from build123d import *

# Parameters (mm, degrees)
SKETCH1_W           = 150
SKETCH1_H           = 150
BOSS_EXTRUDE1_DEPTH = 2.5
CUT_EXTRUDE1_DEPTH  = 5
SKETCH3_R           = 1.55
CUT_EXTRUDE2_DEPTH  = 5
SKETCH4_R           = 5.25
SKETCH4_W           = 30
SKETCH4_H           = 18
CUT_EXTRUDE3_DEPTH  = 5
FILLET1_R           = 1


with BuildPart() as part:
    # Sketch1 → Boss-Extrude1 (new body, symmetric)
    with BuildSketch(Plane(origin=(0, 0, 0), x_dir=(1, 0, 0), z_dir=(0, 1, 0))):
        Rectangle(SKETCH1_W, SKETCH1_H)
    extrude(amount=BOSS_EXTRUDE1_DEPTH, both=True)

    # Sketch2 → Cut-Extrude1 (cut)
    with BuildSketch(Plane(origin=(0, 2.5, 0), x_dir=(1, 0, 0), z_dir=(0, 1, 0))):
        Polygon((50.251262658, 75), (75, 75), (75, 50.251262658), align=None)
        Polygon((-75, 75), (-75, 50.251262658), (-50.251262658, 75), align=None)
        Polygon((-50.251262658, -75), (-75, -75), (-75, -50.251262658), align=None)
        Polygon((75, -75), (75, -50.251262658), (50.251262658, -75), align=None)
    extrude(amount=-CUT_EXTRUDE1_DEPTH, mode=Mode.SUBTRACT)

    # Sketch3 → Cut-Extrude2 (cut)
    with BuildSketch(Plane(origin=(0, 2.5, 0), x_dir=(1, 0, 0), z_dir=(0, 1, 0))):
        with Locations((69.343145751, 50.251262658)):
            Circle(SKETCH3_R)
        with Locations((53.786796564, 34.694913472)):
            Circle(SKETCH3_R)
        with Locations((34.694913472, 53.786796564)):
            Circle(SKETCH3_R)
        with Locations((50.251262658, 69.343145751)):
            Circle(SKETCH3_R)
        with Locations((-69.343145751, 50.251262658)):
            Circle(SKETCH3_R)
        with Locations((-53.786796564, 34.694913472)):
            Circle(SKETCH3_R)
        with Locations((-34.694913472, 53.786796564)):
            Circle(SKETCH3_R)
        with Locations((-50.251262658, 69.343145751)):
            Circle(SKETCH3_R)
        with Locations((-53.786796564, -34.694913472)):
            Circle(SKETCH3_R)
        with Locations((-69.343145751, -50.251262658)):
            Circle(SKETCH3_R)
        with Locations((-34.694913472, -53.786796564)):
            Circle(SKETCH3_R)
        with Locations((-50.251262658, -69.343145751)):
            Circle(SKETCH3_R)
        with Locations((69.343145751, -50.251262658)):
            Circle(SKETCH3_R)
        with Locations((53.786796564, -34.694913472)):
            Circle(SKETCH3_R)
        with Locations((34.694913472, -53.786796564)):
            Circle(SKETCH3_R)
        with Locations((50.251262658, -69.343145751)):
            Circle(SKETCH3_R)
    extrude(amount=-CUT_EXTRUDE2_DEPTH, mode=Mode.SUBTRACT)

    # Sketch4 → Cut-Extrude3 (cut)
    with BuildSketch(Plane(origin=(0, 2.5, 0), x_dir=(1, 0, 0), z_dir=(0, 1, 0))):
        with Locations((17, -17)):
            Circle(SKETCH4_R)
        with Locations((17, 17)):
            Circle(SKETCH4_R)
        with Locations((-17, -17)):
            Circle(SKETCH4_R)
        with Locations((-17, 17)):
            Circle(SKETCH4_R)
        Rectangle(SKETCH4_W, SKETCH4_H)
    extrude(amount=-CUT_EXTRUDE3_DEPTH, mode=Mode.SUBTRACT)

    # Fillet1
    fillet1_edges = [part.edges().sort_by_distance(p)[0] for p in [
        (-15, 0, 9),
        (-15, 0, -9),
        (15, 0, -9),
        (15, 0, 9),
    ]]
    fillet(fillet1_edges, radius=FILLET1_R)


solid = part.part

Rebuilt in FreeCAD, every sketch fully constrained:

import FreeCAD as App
import Part
import Sketcher


def edges_at(feature, points):
    """Names of the edges that pass closest to the given points."""
    edges = feature.Shape.Edges
    near = lambda p: min(range(len(edges)), key=lambda i: edges[i].distToShape(Part.Vertex(*p))[0])
    return sorted({f"Edge{near(p) + 1}" for p in points})

doc = App.newDocument("Part")
params = doc.addObject("Spreadsheet::Sheet", "Params")
for row, (alias, value) in enumerate([
    ("sketch1_width", "150 mm"),
    ("pad1_length", "5 mm"),
    ("sketch2_length", "35 mm"),
    ("pocket1_length", "5 mm"),
    ("sketch3_diameter", "3.1 mm"),
    ("pocket2_length", "5 mm"),
    ("sketch4_diameter", "10.5 mm"),
    ("sketch4_width", "30 mm"),
    ("sketch4_height", "18 mm"),
    ("pocket3_length", "5 mm"),
    ("fillet_radius", "1 mm"),
], start=1):
    params.set(f"A{row}", alias)
    params.set(f"B{row}", "=" + value)
    params.setAlias(f"B{row}", alias)

body = doc.addObject("PartDesign::Body", "Body")

# Sketch on XZ plane
sketch1 = body.newObject("Sketcher::SketchObject", "Sketch")
sketch1.AttachmentSupport = (doc.getObject("XZ_Plane"), [""])
sketch1.MapMode = "FlatFace"
sketch1.addGeometry([
    Part.LineSegment(App.Vector(-75, -75, 0), App.Vector(-75, 75, 0)),
    Part.LineSegment(App.Vector(-75, 75, 0), App.Vector(75, 75, 0)),
    Part.LineSegment(App.Vector(75, 75, 0), App.Vector(75, -75, 0)),
    Part.LineSegment(App.Vector(75, -75, 0), App.Vector(-75, -75, 0)),
], False)
sketch1.addConstraint([
    Sketcher.Constraint("Coincident", 0, 2, 1, 1),
    Sketcher.Constraint("Coincident", 1, 2, 2, 1),
    Sketcher.Constraint("Coincident", 2, 2, 3, 1),
    Sketcher.Constraint("Coincident", 3, 2, 0, 1),
    Sketcher.Constraint("Vertical", 0),
    Sketcher.Constraint("Horizontal", 1),
    Sketcher.Constraint("Vertical", 2),
    Sketcher.Constraint("Horizontal", 3),
    Sketcher.Constraint("Symmetric", 0, 2, 2, 2, -1, 1),
    Sketcher.Constraint("Equal", 3, 0),
    Sketcher.Constraint("DistanceX", 1, 1, 1, 2, 150.0),
])
sketch1.setExpression("Constraints[10]", "Params.sketch1_width")
pad1 = body.newObject("PartDesign::Pad", "Pad")
pad1.Profile = sketch1
pad1.setExpression("Length", "Params.pad1_length")
pad1.Midplane = True

# Sketch on XZ plane
sketch2 = body.newObject("Sketcher::SketchObject", "Sketch001")
sketch2.AttachmentSupport = (doc.getObject("XZ_Plane"), [""])
sketch2.MapMode = "FlatFace"
sketch2.AttachmentOffset = App.Placement(App.Vector(0, 0, -2.5), App.Rotation())
sketch2.addGeometry([
    Part.LineSegment(App.Vector(75, -75, 0), App.Vector(50, -75, 0)),  # 0
    Part.LineSegment(App.Vector(50, -75, 0), App.Vector(75, -50, 0)),  # 1
    Part.LineSegment(App.Vector(75, -50, 0), App.Vector(75, -75, 0)),  # 2
    Part.LineSegment(App.Vector(-75, -75, 0), App.Vector(-75, -50, 0)),  # 3
    Part.LineSegment(App.Vector(-75, -50, 0), App.Vector(-50, -75, 0)),  # 4
    Part.LineSegment(App.Vector(-50, -75, 0), App.Vector(-75, -75, 0)),  # 5
    Part.LineSegment(App.Vector(-75, 75, 0), App.Vector(-50, 75, 0)),  # 6
    Part.LineSegment(App.Vector(-50, 75, 0), App.Vector(-75, 50, 0)),  # 7
    Part.LineSegment(App.Vector(-75, 50, 0), App.Vector(-75, 75, 0)),  # 8
    Part.LineSegment(App.Vector(75, 75, 0), App.Vector(75, 50, 0)),  # 9
    Part.LineSegment(App.Vector(75, 50, 0), App.Vector(50, 75, 0)),  # 10
    Part.LineSegment(App.Vector(50, 75, 0), App.Vector(75, 75, 0)),  # 11
], False)
sketch2.addConstraint([
    Sketcher.Constraint("Coincident", 0, 2, 1, 1),
    Sketcher.Constraint("Coincident", 1, 2, 2, 1),
    Sketcher.Constraint("Coincident", 2, 2, 0, 1),
    Sketcher.Constraint("Coincident", 3, 2, 4, 1),
    Sketcher.Constraint("Coincident", 4, 2, 5, 1),
    Sketcher.Constraint("Coincident", 5, 2, 3, 1),
    Sketcher.Constraint("Coincident", 6, 2, 7, 1),
    Sketcher.Constraint("Coincident", 7, 2, 8, 1),
    Sketcher.Constraint("Coincident", 8, 2, 6, 1),
    Sketcher.Constraint("Coincident", 9, 2, 10, 1),
    Sketcher.Constraint("Coincident", 10, 2, 11, 1),
    Sketcher.Constraint("Coincident", 11, 2, 9, 1),
    Sketcher.Constraint("Horizontal", 0),
    Sketcher.Constraint("Vertical", 2),
    Sketcher.Constraint("Vertical", 3),
    Sketcher.Constraint("Horizontal", 5),
    Sketcher.Constraint("Horizontal", 6),
    Sketcher.Constraint("Vertical", 8),
    Sketcher.Constraint("Vertical", 9),
    Sketcher.Constraint("Horizontal", 11),
    Sketcher.Constraint("Symmetric", 0, 2, 6, 2, -1, 1),
    Sketcher.Constraint("Symmetric", 1, 2, 7, 2, -1, 1),
    Sketcher.Constraint("Symmetric", 3, 2, 9, 2, -1, 1),
    Sketcher.Constraint("Symmetric", 4, 2, 10, 2, -1, 1),
    Sketcher.Constraint("Symmetric", 1, 2, 3, 2, -2),
    Sketcher.Constraint("Symmetric", 0, 2, 4, 2, -2),
    Sketcher.Constraint("Perpendicular", 1, 4),
    Sketcher.Constraint("Distance", 1, 35.0),
    Sketcher.Constraint("DistanceY", 0, 2, -1, 1, 75.0),
    Sketcher.Constraint("DistanceX", -1, 1, 1, 2, 75.0),
])
sketch2.setExpression("Constraints[27]", "Params.sketch2_length")
pocket1 = body.newObject("PartDesign::Pocket", "Pocket")
pocket1.Profile = sketch2
pocket1.setExpression("Length", "Params.pocket1_length")
pocket1.Reversed = True

# Sketch on XZ plane
sketch3 = body.newObject("Sketcher::SketchObject", "Sketch002")
sketch3.AttachmentSupport = (doc.getObject("XZ_Plane"), [""])
sketch3.MapMode = "FlatFace"
sketch3.AttachmentOffset = App.Placement(App.Vector(0, 0, -2.5), App.Rotation())
sketch3.addGeometry([
    Part.Circle(App.Vector(69.3, -50.3, 0), App.Vector(0, 0, 1), 1.6),  # 0
    Part.Circle(App.Vector(53.8, -34.7, 0), App.Vector(0, 0, 1), 1.6),  # 1
    Part.Circle(App.Vector(34.7, -53.8, 0), App.Vector(0, 0, 1), 1.6),  # 2
    Part.Circle(App.Vector(50.3, -69.3, 0), App.Vector(0, 0, 1), 1.6),  # 3
    Part.Circle(App.Vector(-69.3, -50.3, 0), App.Vector(0, 0, 1), 1.6),  # 4
    Part.Circle(App.Vector(-53.8, -34.7, 0), App.Vector(0, 0, 1), 1.6),  # 5
    Part.Circle(App.Vector(-34.7, -53.8, 0), App.Vector(0, 0, 1), 1.6),  # 6
    Part.Circle(App.Vector(-50.3, -69.3, 0), App.Vector(0, 0, 1), 1.6),  # 7
    Part.Circle(App.Vector(-53.8, 34.7, 0), App.Vector(0, 0, 1), 1.6),  # 8
    Part.Circle(App.Vector(-69.3, 50.3, 0), App.Vector(0, 0, 1), 1.6),  # 9
    Part.Circle(App.Vector(-34.7, 53.8, 0), App.Vector(0, 0, 1), 1.6),  # 10
    Part.Circle(App.Vector(-50.3, 69.3, 0), App.Vector(0, 0, 1), 1.6),  # 11
    Part.Circle(App.Vector(69.3, 50.3, 0), App.Vector(0, 0, 1), 1.6),  # 12
    Part.Circle(App.Vector(53.8, 34.7, 0), App.Vector(0, 0, 1), 1.6),  # 13
    Part.Circle(App.Vector(34.7, 53.8, 0), App.Vector(0, 0, 1), 1.6),  # 14
    Part.Circle(App.Vector(50.3, 69.3, 0), App.Vector(0, 0, 1), 1.6),  # 15
], False)
sketch3.addConstraint([
    Sketcher.Constraint("Equal", 0, 1),
    Sketcher.Constraint("Equal", 1, 2),
    Sketcher.Constraint("Equal", 2, 3),
    Sketcher.Constraint("Equal", 3, 4),
    Sketcher.Constraint("Equal", 4, 5),
    Sketcher.Constraint("Equal", 5, 6),
    Sketcher.Constraint("Equal", 6, 7),
    Sketcher.Constraint("Equal", 7, 8),
    Sketcher.Constraint("Equal", 8, 9),
    Sketcher.Constraint("Equal", 9, 10),
    Sketcher.Constraint("Equal", 10, 11),
    Sketcher.Constraint("Equal", 11, 12),
    Sketcher.Constraint("Equal", 12, 13),
    Sketcher.Constraint("Equal", 13, 14),
    Sketcher.Constraint("Equal", 14, 15),
    Sketcher.Constraint("Symmetric", 1, 3, 8, 3, -1, 1),
    Sketcher.Constraint("Symmetric", 0, 3, 9, 3, -1, 1),
    Sketcher.Constraint("Symmetric", 2, 3, 10, 3, -1, 1),
    Sketcher.Constraint("Symmetric", 3, 3, 11, 3, -1, 1),
    Sketcher.Constraint("Symmetric", 4, 3, 12, 3, -1, 1),
    Sketcher.Constraint("Symmetric", 5, 3, 13, 3, -1, 1),
    Sketcher.Constraint("Symmetric", 6, 3, 14, 3, -1, 1),
    Sketcher.Constraint("Symmetric", 7, 3, 15, 3, -1, 1),
    Sketcher.Constraint("Symmetric", 0, 3, 4, 3, -2),
    Sketcher.Constraint("Symmetric", 1, 3, 5, 3, -2),
    Sketcher.Constraint("Symmetric", 2, 3, 6, 3, -2),
    Sketcher.Constraint("Symmetric", 3, 3, 7, 3, -2),
    Sketcher.Constraint("Diameter", 0, 3.1),
    Sketcher.Constraint("DistanceX", 1, 3, 0, 3, 15.556349),
    Sketcher.Constraint("DistanceY", 0, 3, 1, 3, 15.556349),
    Sketcher.Constraint("DistanceX", 2, 3, 3, 3, 15.556349),
    Sketcher.Constraint("DistanceY", 3, 3, 2, 3, 15.556349),
    Sketcher.Constraint("DistanceX", 4, 3, 2, 3, 104.038059),
    Sketcher.Constraint("DistanceX", 4, 3, 0, 3, 138.686292),
    Sketcher.Constraint("DistanceY", 6, 3, 8, 3, 88.48171),
    Sketcher.Constraint("DistanceY", 0, 3, -1, 1, 50.251263),
])
sketch3.setExpression("Constraints[27]", "Params.sketch3_diameter")
pocket2 = body.newObject("PartDesign::Pocket", "Pocket001")
pocket2.Profile = sketch3
pocket2.setExpression("Length", "Params.pocket2_length")
pocket2.Reversed = True

# Sketch on XZ plane
sketch4 = body.newObject("Sketcher::SketchObject", "Sketch003")
sketch4.AttachmentSupport = (doc.getObject("XZ_Plane"), [""])
sketch4.MapMode = "FlatFace"
sketch4.AttachmentOffset = App.Placement(App.Vector(0, 0, -2.5), App.Rotation())
sketch4.addGeometry([
    Part.Circle(App.Vector(17, 17, 0), App.Vector(0, 0, 1), 5),  # 0
    Part.Circle(App.Vector(17, -17, 0), App.Vector(0, 0, 1), 5),  # 1
    Part.Circle(App.Vector(-17, 17, 0), App.Vector(0, 0, 1), 5),  # 2
    Part.Circle(App.Vector(-17, -17, 0), App.Vector(0, 0, 1), 5),  # 3
    Part.LineSegment(App.Vector(-15, -9, 0), App.Vector(-15, 9, 0)),  # 4
    Part.LineSegment(App.Vector(-15, 9, 0), App.Vector(15, 9, 0)),  # 5
    Part.LineSegment(App.Vector(15, 9, 0), App.Vector(15, -9, 0)),  # 6
    Part.LineSegment(App.Vector(15, -9, 0), App.Vector(-15, -9, 0)),  # 7
], False)
sketch4.addConstraint([
    Sketcher.Constraint("Coincident", 4, 2, 5, 1),
    Sketcher.Constraint("Coincident", 5, 2, 6, 1),
    Sketcher.Constraint("Coincident", 6, 2, 7, 1),
    Sketcher.Constraint("Coincident", 7, 2, 4, 1),
    Sketcher.Constraint("Vertical", 4),
    Sketcher.Constraint("Horizontal", 5),
    Sketcher.Constraint("Vertical", 6),
    Sketcher.Constraint("Horizontal", 7),
    Sketcher.Constraint("Equal", 0, 1),
    Sketcher.Constraint("Equal", 1, 2),
    Sketcher.Constraint("Equal", 2, 3),
    Sketcher.Constraint("Symmetric", 1, 3, 2, 3, -1, 1),
    Sketcher.Constraint("Symmetric", 0, 3, 3, 3, -1, 1),
    Sketcher.Constraint("Symmetric", 4, 2, 6, 2, -1, 1),
    Sketcher.Constraint("Symmetric", 0, 3, 2, 3, -2),
    Sketcher.Constraint("Diameter", 0, 10.5),
    Sketcher.Constraint("DistanceX", 5, 1, 5, 2, 30.0),
    Sketcher.Constraint("DistanceY", 4, 1, 4, 2, 18.0),
    Sketcher.Constraint("DistanceX", -1, 1, 0, 3, 17.0),
    Sketcher.Constraint("DistanceY", -1, 1, 0, 3, 17.0),
])
sketch4.setExpression("Constraints[15]", "Params.sketch4_diameter")
sketch4.setExpression("Constraints[16]", "Params.sketch4_width")
sketch4.setExpression("Constraints[17]", "Params.sketch4_height")
pocket3 = body.newObject("PartDesign::Pocket", "Pocket002")
pocket3.Profile = sketch4
pocket3.setExpression("Length", "Params.pocket3_length")
pocket3.Reversed = True
doc.recompute()

fillet = body.newObject("PartDesign::Fillet", "Fillet")
fillet.Base = (pocket3, edges_at(pocket3, [
    (-15, 0, 9),
    (-15, 0, -9),
    (15, 0, -9),
    (15, 0, 9),
]))
fillet.setExpression("Radius", "Params.fillet_radius")

doc.recompute()
